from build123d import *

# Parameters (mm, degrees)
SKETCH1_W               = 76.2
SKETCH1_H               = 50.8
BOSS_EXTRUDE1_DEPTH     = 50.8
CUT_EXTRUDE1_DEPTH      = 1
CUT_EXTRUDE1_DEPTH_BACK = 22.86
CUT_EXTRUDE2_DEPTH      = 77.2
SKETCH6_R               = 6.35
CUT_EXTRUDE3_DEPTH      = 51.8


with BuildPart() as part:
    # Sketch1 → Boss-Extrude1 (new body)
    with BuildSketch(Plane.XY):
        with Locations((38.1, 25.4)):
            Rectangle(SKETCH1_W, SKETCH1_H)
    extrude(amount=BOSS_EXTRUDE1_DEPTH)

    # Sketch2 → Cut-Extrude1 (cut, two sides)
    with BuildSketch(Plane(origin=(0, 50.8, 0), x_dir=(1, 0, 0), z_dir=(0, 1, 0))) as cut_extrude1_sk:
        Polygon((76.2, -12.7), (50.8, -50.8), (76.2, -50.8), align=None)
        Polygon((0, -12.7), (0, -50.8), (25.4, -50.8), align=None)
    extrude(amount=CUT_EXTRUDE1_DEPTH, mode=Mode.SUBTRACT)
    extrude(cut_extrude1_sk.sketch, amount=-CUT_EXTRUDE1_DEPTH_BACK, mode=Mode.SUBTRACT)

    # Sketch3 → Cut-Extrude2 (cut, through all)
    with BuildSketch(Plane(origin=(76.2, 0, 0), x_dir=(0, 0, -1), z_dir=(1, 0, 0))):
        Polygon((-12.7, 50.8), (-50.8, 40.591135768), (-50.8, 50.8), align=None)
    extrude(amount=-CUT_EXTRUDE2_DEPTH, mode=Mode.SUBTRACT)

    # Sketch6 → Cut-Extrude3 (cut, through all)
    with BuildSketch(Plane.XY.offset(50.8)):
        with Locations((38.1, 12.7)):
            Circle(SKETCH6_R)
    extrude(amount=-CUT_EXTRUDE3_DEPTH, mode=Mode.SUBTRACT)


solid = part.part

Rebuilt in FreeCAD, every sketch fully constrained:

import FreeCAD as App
import Part
import Sketcher
from FreeCAD import Vector
Q = App.Units.Quantity


def add_polygon(sketch, points):
    """Adds a closed chain of lines whose ends are joined by coincident constraints."""
    first, n = sketch.GeometryCount, len(points)
    for a, b in zip(points, points[1:] + points[:1]):
        sketch.addGeometry(Part.LineSegment(App.Vector(*a, 0), App.Vector(*b, 0)), False)
    for i in range(n):
        sketch.addConstraint(Sketcher.Constraint("Coincident", first + i, 2, first + (i + 1) % n, 1))

doc = App.newDocument("Part")
body = doc.addObject("PartDesign::Body", "Body")

sketch1 = doc.addObject("Sketcher::SketchObject", "Sketch")
body.addObject(sketch1)
sketch1.AttachmentSupport = (doc.XY_Plane, [""])
sketch1.MapMode = "FlatFace"
add_polygon(sketch1, [(0, 50.8), (0, 0), (76.2, 0), (76.2, 50.8)])
sketch1.addConstraint(Sketcher.Constraint("Vertical", 0))
sketch1.addConstraint(Sketcher.Constraint("Horizontal", 1))
sketch1.addConstraint(Sketcher.Constraint("Vertical", 2))
sketch1.addConstraint(Sketcher.Constraint("Horizontal", 3))
sketch1.addConstraint(Sketcher.Constraint("Coincident", 0, 2, -1, 1))
sketch1.addConstraint(Sketcher.Constraint("DistanceX", 1, 1, 1, 2, Q("3 in")))
sketch1.addConstraint(Sketcher.Constraint("DistanceY", 0, 2, 0, 1, Q("2 in")))
pad1 = doc.addObject("PartDesign::Pad", "Pad")
body.addObject(pad1)
pad1.Profile = sketch1
pad1.Length = Q("2 in")

sketch2 = doc.addObject("Sketcher::SketchObject", "Sketch001")
body.addObject(sketch2)
sketch2.AttachmentSupport = (doc.XZ_Plane, [""])
sketch2.MapMode = "FlatFace"
sketch2.AttachmentOffset = App.Placement(Vector(0, 0, -2 * 25.4), App.Rotation())
add_polygon(sketch2, [(76.2, 12.7), (50.8, 50.8), (76.2, 50.8)])
add_polygon(sketch2, [(0, 12.7), (0, 50.8), (25.4, 50.8)])
sketch2.addConstraint(Sketcher.Constraint("Horizontal", 1))
sketch2.addConstraint(Sketcher.Constraint("Vertical", 2))
sketch2.addConstraint(Sketcher.Constraint("Vertical", 3))
sketch2.addConstraint(Sketcher.Constraint("Horizontal", 4))
sketch2.addConstraint(Sketcher.Constraint("PointOnObject", 3, 2, -2))
sketch2.addConstraint(Sketcher.Constraint("Horizontal", 1, 2, 3, 2))
sketch2.addConstraint(Sketcher.Constraint("Horizontal", 2, 2, 5, 2))
sketch2.addConstraint(Sketcher.Constraint("Equal", 1, 4))
sketch2.addConstraint(Sketcher.Constraint("DistanceX", 1, 1, 1, 2, Q("1 in")))
sketch2.addConstraint(Sketcher.Constraint("DistanceY", 2, 2, 2, 1, Q("1.5 in")))
sketch2.addConstraint(Sketcher.Constraint("DistanceX", -1, 1, 0, 2, Q("2 in")))
sketch2.addConstraint(Sketcher.Constraint("DistanceY", -1, 1, 0, 2, Q("2 in")))
pocket1 = doc.addObject("PartDesign::Pocket", "Pocket")
body.addObject(pocket1)
pocket1.Profile = sketch2
pocket1.Type = "TwoLengths"
pocket1.Length = 1
pocket1.Length2 = Q("0.9 in")

sketch3 = doc.addObject("Sketcher::SketchObject", "Sketch002")
body.addObject(sketch3)
sketch3.AttachmentSupport = (doc.YZ_Plane, [""])
sketch3.MapMode = "FlatFace"
sketch3.AttachmentOffset = App.Placement(Vector(0, 0, 3 * 25.4), App.Rotation())
add_polygon(sketch3, [(40.591136, 50.8), (50.8, 12.7), (50.8, 50.8)])
sketch3.addConstraint(Sketcher.Constraint("Vertical", 1))
sketch3.addConstraint(Sketcher.Constraint("Horizontal", 2))
sketch3.addConstraint(Sketcher.Constraint("DistanceY", 1, 1, 1, 2, Q("1.5 in")))
sketch3.addConstraint(Sketcher.Constraint("DistanceX", -1, 1, 0, 2, Q("2 in")))
sketch3.addConstraint(Sketcher.Constraint("DistanceY", -1, 1, 1, 2, Q("2 in")))
sketch3.addConstraint(Sketcher.Constraint("Angle", 0, Q("-75 deg")))
pocket2 = doc.addObject("PartDesign::Pocket", "Pocket001")
body.addObject(pocket2)
pocket2.Profile = sketch3
pocket2.Type = "ThroughAll"

sketch4 = doc.addObject("Sketcher::SketchObject", "Sketch003")
body.addObject(sketch4)
sketch4.AttachmentSupport = (doc.XY_Plane, [""])
sketch4.MapMode = "FlatFace"
sketch4.AttachmentOffset = App.Placement(Vector(0, 0, 2 * 25.4), App.Rotation())
sketch4.addGeometry(Part.Circle(Vector(38.1, 12.7, 0), Vector(0, 0, 1), 6.35), False)
sketch4.addConstraint(Sketcher.Constraint("Diameter", 0, Q("0.5 in")))
sketch4.addConstraint(Sketcher.Constraint("DistanceX", -1, 1, 0, 3, Q("1.5 in")))
sketch4.addConstraint(Sketcher.Constraint("DistanceY", -1, 1, 0, 3, Q("0.5 in")))
pocket3 = doc.addObject("PartDesign::Pocket", "Pocket002")
body.addObject(pocket3)
pocket3.Profile = sketch4
pocket3.Type = "ThroughAll"

doc.recompute()
